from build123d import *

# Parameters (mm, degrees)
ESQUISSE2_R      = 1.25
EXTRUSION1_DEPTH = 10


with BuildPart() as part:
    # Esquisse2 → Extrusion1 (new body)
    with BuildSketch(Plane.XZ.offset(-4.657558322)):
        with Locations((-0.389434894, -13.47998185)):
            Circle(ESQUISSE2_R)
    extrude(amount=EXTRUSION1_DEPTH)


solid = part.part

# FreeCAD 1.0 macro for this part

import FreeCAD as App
import Part
import Sketcher

V = App.Vector

doc = App.newDocument("Part")
params = doc.addObject("Spreadsheet::Sheet", "Params")
for row, (alias, value) in enumerate([
    ("sketch1_diameter", "2.5 mm"),
    ("pad1_length", "10 mm"),
], start=1):
    params.set(f"A{row}", alias)
    params.set(f"B{row}", "=" + value)
    params.setAlias(f"B{row}", alias)

body = doc.addObject("PartDesign::Body", "Body")

sketch1 = body.newObject("Sketcher::SketchObject", "Sketch")
sketch1.AttachmentSupport = (doc.getObject("XZ_Plane"), [""])
sketch1.MapMode = "FlatFace"
sketch1.AttachmentOffset = App.Placement(V(0, 0, -4.657558), App.Rotation())
sketch1.addGeometry(Part.Circle(V(-0.4, -13.5, 0), V(0, 0, 1), 1.2), False)
sketch1.addConstraint(Sketcher.Constraint("Diameter", 0, 2.5))
sketch1.addConstraint(Sketcher.Constraint("DistanceY", 0, 3, -1, 1, 13.479982))
sketch1.addConstraint(Sketcher.Constraint("DistanceX", 0, 3, -1, 1, 0.389435))
sketch1.setExpression("Constraints[0]", "Params.sketch1_diameter")
pad1 = body.newObject("PartDesign::Pad", "Pad")
pad1.Profile = sketch1
pad1.setExpression("Length", "Params.pad1_length")

doc.recompute()
